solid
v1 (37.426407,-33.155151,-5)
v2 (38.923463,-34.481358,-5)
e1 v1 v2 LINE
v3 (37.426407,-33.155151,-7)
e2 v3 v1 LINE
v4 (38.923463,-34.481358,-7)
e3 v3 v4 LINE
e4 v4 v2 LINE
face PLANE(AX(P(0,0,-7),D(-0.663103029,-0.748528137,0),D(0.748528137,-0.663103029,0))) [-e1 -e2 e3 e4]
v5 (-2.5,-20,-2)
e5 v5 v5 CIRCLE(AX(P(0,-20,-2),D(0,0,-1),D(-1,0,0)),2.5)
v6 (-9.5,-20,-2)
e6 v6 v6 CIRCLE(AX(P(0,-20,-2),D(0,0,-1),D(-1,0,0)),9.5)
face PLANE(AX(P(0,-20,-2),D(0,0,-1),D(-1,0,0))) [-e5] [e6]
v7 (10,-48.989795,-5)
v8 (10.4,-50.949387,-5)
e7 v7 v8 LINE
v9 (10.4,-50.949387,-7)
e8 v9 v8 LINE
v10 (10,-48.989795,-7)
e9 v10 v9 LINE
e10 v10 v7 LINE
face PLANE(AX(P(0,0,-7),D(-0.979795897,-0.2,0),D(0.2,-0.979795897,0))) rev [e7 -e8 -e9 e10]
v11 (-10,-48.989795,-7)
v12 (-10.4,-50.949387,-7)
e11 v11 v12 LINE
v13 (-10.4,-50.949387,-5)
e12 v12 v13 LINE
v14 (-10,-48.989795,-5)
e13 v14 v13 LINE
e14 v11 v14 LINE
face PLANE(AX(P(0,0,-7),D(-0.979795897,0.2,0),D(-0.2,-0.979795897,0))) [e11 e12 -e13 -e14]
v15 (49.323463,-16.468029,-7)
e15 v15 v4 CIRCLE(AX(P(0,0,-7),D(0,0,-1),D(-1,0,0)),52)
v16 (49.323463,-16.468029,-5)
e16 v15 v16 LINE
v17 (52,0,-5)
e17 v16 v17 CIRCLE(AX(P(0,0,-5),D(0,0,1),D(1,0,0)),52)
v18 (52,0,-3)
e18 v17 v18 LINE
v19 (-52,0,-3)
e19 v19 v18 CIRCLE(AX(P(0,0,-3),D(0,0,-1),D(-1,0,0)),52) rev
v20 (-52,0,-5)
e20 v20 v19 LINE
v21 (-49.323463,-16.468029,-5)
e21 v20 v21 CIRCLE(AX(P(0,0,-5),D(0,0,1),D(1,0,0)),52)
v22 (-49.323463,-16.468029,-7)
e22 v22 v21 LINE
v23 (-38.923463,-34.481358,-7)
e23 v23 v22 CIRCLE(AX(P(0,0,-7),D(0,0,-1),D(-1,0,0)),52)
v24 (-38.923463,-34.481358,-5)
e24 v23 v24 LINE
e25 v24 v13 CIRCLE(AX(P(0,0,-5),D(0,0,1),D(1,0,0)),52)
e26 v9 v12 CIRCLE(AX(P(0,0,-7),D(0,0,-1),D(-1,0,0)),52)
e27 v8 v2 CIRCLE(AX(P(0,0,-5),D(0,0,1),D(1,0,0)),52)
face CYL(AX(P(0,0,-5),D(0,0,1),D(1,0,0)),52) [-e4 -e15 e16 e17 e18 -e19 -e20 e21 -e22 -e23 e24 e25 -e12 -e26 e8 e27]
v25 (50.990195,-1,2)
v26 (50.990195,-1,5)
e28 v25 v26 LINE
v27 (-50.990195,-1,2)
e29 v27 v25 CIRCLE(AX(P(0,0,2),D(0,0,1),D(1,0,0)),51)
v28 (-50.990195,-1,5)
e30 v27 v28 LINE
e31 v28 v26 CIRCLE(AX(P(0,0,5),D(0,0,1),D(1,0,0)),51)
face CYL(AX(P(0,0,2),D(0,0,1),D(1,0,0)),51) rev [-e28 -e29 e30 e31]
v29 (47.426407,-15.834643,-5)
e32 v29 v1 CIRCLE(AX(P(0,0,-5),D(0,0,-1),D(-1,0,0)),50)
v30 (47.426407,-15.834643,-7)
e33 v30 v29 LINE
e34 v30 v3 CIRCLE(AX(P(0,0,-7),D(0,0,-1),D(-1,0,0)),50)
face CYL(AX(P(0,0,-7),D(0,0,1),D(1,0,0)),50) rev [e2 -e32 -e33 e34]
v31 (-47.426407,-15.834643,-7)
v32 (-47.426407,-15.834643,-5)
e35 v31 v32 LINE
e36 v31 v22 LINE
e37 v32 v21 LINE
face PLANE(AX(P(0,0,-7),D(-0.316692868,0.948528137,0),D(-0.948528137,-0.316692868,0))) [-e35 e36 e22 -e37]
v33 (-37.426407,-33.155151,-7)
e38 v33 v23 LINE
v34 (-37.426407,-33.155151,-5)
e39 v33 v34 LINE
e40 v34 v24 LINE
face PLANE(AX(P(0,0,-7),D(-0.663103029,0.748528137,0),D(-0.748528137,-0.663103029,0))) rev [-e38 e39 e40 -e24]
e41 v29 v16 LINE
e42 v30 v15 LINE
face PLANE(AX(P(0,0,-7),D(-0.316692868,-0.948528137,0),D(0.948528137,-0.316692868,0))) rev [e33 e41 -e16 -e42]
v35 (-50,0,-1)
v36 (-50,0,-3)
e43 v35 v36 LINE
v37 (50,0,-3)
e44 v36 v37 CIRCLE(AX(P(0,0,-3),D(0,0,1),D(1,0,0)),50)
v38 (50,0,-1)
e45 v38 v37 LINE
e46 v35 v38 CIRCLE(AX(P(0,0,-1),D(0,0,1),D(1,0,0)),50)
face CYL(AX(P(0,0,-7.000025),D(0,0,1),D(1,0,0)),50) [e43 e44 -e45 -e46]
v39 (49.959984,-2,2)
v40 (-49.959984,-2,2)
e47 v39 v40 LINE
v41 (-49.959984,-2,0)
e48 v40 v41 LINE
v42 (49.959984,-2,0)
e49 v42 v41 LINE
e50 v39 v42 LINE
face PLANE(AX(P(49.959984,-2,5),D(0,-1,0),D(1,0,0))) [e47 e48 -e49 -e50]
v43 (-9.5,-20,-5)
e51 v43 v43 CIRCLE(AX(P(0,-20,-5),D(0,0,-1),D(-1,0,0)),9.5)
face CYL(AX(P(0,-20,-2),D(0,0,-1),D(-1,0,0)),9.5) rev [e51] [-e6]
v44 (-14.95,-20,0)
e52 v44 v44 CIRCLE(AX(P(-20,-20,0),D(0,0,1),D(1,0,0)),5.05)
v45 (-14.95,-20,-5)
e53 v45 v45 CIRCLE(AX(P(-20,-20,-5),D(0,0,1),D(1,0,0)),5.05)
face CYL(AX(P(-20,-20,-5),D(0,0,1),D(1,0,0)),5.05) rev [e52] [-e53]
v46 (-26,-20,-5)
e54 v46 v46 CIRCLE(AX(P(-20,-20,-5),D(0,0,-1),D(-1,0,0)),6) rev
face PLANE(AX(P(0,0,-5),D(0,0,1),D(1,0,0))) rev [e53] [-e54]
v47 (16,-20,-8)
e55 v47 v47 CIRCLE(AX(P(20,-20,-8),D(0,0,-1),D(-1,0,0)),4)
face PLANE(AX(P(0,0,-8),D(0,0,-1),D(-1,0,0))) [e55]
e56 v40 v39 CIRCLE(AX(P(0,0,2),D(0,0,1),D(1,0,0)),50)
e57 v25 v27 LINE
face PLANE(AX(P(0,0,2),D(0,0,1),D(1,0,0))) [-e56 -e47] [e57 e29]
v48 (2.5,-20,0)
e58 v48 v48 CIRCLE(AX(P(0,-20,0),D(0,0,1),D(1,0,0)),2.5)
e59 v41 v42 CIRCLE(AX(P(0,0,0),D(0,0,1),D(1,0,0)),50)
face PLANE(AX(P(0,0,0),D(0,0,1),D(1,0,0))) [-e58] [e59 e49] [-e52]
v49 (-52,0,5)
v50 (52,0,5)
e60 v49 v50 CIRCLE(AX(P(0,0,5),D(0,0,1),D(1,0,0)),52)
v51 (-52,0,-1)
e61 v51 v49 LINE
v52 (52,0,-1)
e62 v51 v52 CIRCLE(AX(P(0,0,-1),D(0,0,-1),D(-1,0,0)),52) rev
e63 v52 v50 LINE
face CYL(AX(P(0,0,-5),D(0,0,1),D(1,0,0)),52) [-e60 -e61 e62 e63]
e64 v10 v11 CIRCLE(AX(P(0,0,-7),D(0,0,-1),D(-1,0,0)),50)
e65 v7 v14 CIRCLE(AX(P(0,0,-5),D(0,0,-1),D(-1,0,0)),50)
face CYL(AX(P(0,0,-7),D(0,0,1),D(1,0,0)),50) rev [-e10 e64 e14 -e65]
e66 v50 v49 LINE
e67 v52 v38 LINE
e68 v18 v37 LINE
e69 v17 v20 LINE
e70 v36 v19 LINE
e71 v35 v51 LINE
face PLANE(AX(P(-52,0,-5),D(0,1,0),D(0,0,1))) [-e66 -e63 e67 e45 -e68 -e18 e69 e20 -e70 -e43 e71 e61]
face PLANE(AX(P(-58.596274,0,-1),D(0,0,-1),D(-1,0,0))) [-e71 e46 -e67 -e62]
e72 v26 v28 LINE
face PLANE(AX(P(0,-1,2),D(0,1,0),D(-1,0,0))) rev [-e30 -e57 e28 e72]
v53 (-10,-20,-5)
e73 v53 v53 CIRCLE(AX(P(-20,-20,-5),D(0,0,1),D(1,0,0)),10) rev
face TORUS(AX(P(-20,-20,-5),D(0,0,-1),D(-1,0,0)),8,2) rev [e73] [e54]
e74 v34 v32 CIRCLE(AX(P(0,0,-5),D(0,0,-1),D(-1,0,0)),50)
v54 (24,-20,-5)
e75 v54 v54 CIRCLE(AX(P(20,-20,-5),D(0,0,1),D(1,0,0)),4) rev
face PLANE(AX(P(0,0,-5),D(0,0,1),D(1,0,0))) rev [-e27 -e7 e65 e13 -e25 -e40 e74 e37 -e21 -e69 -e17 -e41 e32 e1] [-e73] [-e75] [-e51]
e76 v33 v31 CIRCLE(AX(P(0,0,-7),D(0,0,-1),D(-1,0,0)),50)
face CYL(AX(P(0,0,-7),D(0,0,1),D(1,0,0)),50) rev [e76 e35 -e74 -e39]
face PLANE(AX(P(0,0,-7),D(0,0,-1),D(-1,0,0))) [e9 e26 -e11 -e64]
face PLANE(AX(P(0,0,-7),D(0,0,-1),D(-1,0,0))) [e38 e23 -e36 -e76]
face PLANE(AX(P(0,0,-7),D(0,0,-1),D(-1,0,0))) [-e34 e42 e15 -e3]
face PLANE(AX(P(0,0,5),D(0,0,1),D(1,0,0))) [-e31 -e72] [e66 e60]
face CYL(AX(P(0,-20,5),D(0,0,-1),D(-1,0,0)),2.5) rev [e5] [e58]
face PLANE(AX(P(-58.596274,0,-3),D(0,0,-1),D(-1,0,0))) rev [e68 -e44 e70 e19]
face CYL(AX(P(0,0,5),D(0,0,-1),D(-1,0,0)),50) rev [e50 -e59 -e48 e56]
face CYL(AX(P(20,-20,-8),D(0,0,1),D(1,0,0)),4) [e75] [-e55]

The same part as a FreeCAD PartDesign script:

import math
import FreeCAD as App
import Part
import Sketcher
from FreeCAD import Vector
Q = App.Units.Quantity

doc = App.newDocument("Part")
params = doc.addObject("Spreadsheet::Sheet", "Params")
for row, (alias, value) in enumerate([
    ("sketch1_radius", "52 mm"),
    ("sketch1_diameter", "10.1 mm"),
    ("pad1_length", "5 mm"),
    ("sketch2_radius", "52 mm"),
    ("sketch2_radius2", "50 mm"),
    ("pad2_length", "5 mm"),
    ("sketch3_radius", "52 mm"),
    ("sketch3_radius2", "50 mm"),
    ("pad3_length", "2 mm"),
    ("sketch4_diameter", "19 mm"),
    ("sketch4_diameter2", "10.1 mm"),
    ("pocket1_length", "3 mm"),
    ("sketch5_diameter", "5 mm"),
    ("sketch6_diameter", "8 mm"),
    ("pad4_length", "3 mm"),
    ("sketch7_radius", "51 mm"),
    ("pocket3_length", "3 mm"),
    ("sketch8_height", "2 mm"),
    ("groove_angle", "180 deg"),
    ("sketch9_diameter", "4 mm"),
    ("sketch9_height", "10 mm"),
    ("groove2_angle", "360 deg"),
], start=1):
    params.set(f"A{row}", alias)
    params.set(f"B{row}", "=" + value)
    params.setAlias(f"B{row}", alias)

body = doc.addObject("PartDesign::Body", "Body")

# Sketch on XY plane
sketch1 = body.newObject("Sketcher::SketchObject", "Sketch")
sketch1.AttachmentSupport = (doc.getObject("XY_Plane"), [""])
sketch1.MapMode = "FlatFace"
sketch1.addGeometry(Part.LineSegment(Vector(52, 0, 0), Vector(-52, 0, 0)), False)
sketch1.addGeometry(Part.ArcOfCircle(Part.Circle(Vector(0, 0, 0), Vector(0, 0, 1), 52), math.radians(180), math.radians(360)), False)
sketch1.addGeometry(Part.Circle(Vector(-20, -20, 0), Vector(0, 0, 1), 5.05), False)
sketch1.addConstraint(Sketcher.Constraint("Coincident", 0, 1, 1, 2))
sketch1.addConstraint(Sketcher.Constraint("Coincident", 1, 1, 0, 2))
sketch1.addConstraint(Sketcher.Constraint("Horizontal", 0))
sketch1.addConstraint(Sketcher.Constraint("Coincident", 1, 3, -1, 1))
sketch1.addConstraint(Sketcher.Constraint("PointOnObject", 0, 1, -1))
sketch1.addConstraint(Sketcher.Constraint("Radius", 1, Q("52 mm")))
sketch1.addConstraint(Sketcher.Constraint("Diameter", 2, Q("10.1 mm")))
sketch1.addConstraint(Sketcher.Constraint("DistanceX", 2, 3, -1, 1, Q("20 mm")))
sketch1.addConstraint(Sketcher.Constraint("DistanceY", 2, 3, -1, 1, Q("20 mm")))
sketch1.setExpression("Constraints[5]", "Params.sketch1_radius")
sketch1.setExpression("Constraints[6]", "Params.sketch1_diameter")
pad1 = body.newObject("PartDesign::Pad", "Pad")
pad1.Profile = sketch1
pad1.setExpression("Length", "Params.pad1_length")
pad1.Reversed = True

# Sketch on XY plane
sketch2 = body.newObject("Sketcher::SketchObject", "Sketch001")
sketch2.AttachmentSupport = (doc.getObject("XY_Plane"), [""])
sketch2.MapMode = "FlatFace"
sketch2.AttachmentOffset = App.Placement(Vector(0, 0, 5), App.Rotation())
sketch2.addGeometry(Part.LineSegment(Vector(52, 0, 0), Vector(-52, 0, 0)), False)
sketch2.addGeometry(Part.ArcOfCircle(Part.Circle(Vector(0, 0, 0), Vector(0, 0, 1), 52), math.radians(180), math.radians(360)), False)
sketch2.addGeometry(Part.LineSegment(Vector(-49.959984, -2, 0), Vector(49.959984, -2, 0)), False)
sketch2.addGeometry(Part.ArcOfCircle(Part.Circle(Vector(0, 0, 0), Vector(0, 0, 1), 50), math.radians(-177.707557), math.radians(-2.292443)), False)
sketch2.addConstraint(Sketcher.Constraint("Coincident", 0, 1, 1, 2))
sketch2.addConstraint(Sketcher.Constraint("Coincident", 1, 1, 0, 2))
sketch2.addConstraint(Sketcher.Constraint("Coincident", 2, 1, 3, 1))
sketch2.addConstraint(Sketcher.Constraint("Coincident", 3, 2, 2, 2))
sketch2.addConstraint(Sketcher.Constraint("Horizontal", 0))
sketch2.addConstraint(Sketcher.Constraint("Horizontal", 2))
sketch2.addConstraint(Sketcher.Constraint("Coincident", 1, 3, -1, 1))
sketch2.addConstraint(Sketcher.Constraint("Coincident", 3, 3, -1, 1))
sketch2.addConstraint(Sketcher.Constraint("PointOnObject", 0, 1, -1))
sketch2.addConstraint(Sketcher.Constraint("Radius", 1, Q("52 mm")))
sketch2.addConstraint(Sketcher.Constraint("Radius", 3, Q("50 mm")))
sketch2.addConstraint(Sketcher.Constraint("DistanceY", 2, 1, -1, 1, Q("2 mm")))
sketch2.setExpression("Constraints[9]", "Params.sketch2_radius")
sketch2.setExpression("Constraints[10]", "Params.sketch2_radius2")
pad2 = body.newObject("PartDesign::Pad", "Pad001")
pad2.Profile = sketch2
pad2.setExpression("Length", "Params.pad2_length")
pad2.Reversed = True

# Sketch on XY plane
sketch3 = body.newObject("Sketcher::SketchObject", "Sketch002")
sketch3.AttachmentSupport = (doc.getObject("XY_Plane"), [""])
sketch3.MapMode = "FlatFace"
sketch3.AttachmentOffset = App.Placement(Vector(0, 0, -5), App.Rotation())
sketch3.addGeometry(Part.ArcOfCircle(Part.Circle(Vector(0, 0, 0), Vector(0, 0, 1), 52), math.radians(-41.536959), math.radians(-18.463041)), False)
sketch3.addGeometry(Part.LineSegment(Vector(38.923463, -34.481358, 0), Vector(37.426407, -33.155151, 0)), False)
sketch3.addGeometry(Part.ArcOfCircle(Part.Circle(Vector(0, 0, 0), Vector(0, 0, 1), 50), math.radians(-41.536959), math.radians(-18.463041)), False)
sketch3.addGeometry(Part.LineSegment(Vector(47.426407, -15.834643, 0), Vector(49.323463, -16.468029, 0)), False)
sketch3.addGeometry(Part.LineSegment(Vector(-10.4, -50.949387, 0), Vector(-10, -48.989795, 0)), False)
sketch3.addGeometry(Part.ArcOfCircle(Part.Circle(Vector(0, 0, 0), Vector(0, 0, 1), 50), math.radians(-101.536959), math.radians(-78.463041)), False)
sketch3.addGeometry(Part.LineSegment(Vector(10, -48.989795, 0), Vector(10.4, -50.949387, 0)), False)
sketch3.addGeometry(Part.ArcOfCircle(Part.Circle(Vector(0, 0, 0), Vector(0, 0, 1), 52), math.radians(-101.536959), math.radians(-78.463041)), False)
sketch3.addGeometry(Part.LineSegment(Vector(-37.426407, -33.155151, 0), Vector(-38.923463, -34.481358, 0)), False)
sketch3.addGeometry(Part.ArcOfCircle(Part.Circle(Vector(0, 0, 0), Vector(0, 0, 1), 52), math.radians(-161.536959), math.radians(-138.463041)), False)
sketch3.addGeometry(Part.LineSegment(Vector(-49.323463, -16.468029, 0), Vector(-47.426407, -15.834643, 0)), False)
sketch3.addGeometry(Part.ArcOfCircle(Part.Circle(Vector(0, 0, 0), Vector(0, 0, 1), 50), math.radians(-161.536959), math.radians(-138.463041)), False)
sketch3.addConstraint(Sketcher.Constraint("Coincident", 0, 1, 1, 1))
sketch3.addConstraint(Sketcher.Constraint("Coincident", 1, 2, 2, 1))
sketch3.addConstraint(Sketcher.Constraint("Coincident", 2, 2, 3, 1))
sketch3.addConstraint(Sketcher.Constraint("Coincident", 3, 2, 0, 2))
sketch3.addConstraint(Sketcher.Constraint("Coincident", 4, 2, 5, 1))
sketch3.addConstraint(Sketcher.Constraint("Coincident", 5, 2, 6, 1))
sketch3.addConstraint(Sketcher.Constraint("Coincident", 6, 2, 7, 2))
sketch3.addConstraint(Sketcher.Constraint("Coincident", 7, 1, 4, 1))
sketch3.addConstraint(Sketcher.Constraint("Coincident", 8, 2, 9, 2))
sketch3.addConstraint(Sketcher.Constraint("Coincident", 9, 1, 10, 1))
sketch3.addConstraint(Sketcher.Constraint("Coincident", 10, 2, 11, 1))
sketch3.addConstraint(Sketcher.Constraint("Coincident", 11, 2, 8, 1))
sketch3.addConstraint(Sketcher.Constraint("Coincident", 0, 3, -1, 1))
sketch3.addConstraint(Sketcher.Constraint("Coincident", 2, 3, -1, 1))
sketch3.addConstraint(Sketcher.Constraint("Coincident", 5, 3, -1, 1))
sketch3.addConstraint(Sketcher.Constraint("Coincident", 7, 3, -1, 1))
sketch3.addConstraint(Sketcher.Constraint("Coincident", 9, 3, -1, 1))
sketch3.addConstraint(Sketcher.Constraint("Coincident", 11, 3, -1, 1))
sketch3.addConstraint(Sketcher.Constraint("Equal", 2, 5))
sketch3.addConstraint(Sketcher.Constraint("Equal", 0, 7))
sketch3.addConstraint(Sketcher.Constraint("Equal", 7, 9))
sketch3.addConstraint(Sketcher.Constraint("Equal", 5, 11))
sketch3.addConstraint(Sketcher.Constraint("Horizontal", 4, 2, 5, 2))
sketch3.addConstraint(Sketcher.Constraint("Horizontal", 6, 2, 7, 1))
sketch3.addConstraint(Sketcher.Constraint("Horizontal", 0, 1, 8, 2))
sketch3.addConstraint(Sketcher.Constraint("Horizontal", 3, 2, 9, 1))
sketch3.addConstraint(Sketcher.Constraint("Horizontal", 2, 2, 10, 2))
sketch3.addConstraint(Sketcher.Constraint("Horizontal", 1, 2, 11, 2))
sketch3.addConstraint(Sketcher.Constraint("Radius", 0, Q("52 mm")))
sketch3.addConstraint(Sketcher.Constraint("Radius", 2, Q("50 mm")))
sketch3.addConstraint(Sketcher.Constraint("DistanceX", 4, 2, -1, 1, Q("10 mm")))
sketch3.addConstraint(Sketcher.Constraint("DistanceX", 1, 2, 2, 2, Q("10 mm")))
sketch3.addConstraint(Sketcher.Constraint("DistanceX", -1, 1, 6, 2, Q("10.4 mm")))
sketch3.addConstraint(Sketcher.Constraint("DistanceX", 0, 1, 3, 2, Q("10.4 mm")))
sketch3.addConstraint(Sketcher.Constraint("DistanceY", 1, 2, -1, 1, Q("33.155151 mm")))
sketch3.addConstraint(Sketcher.Constraint("DistanceY", 3, 2, -1, 1, Q("16.468029 mm")))
sketch3.setExpression("Constraints[28]", "Params.sketch3_radius")
sketch3.setExpression("Constraints[29]", "Params.sketch3_radius2")
pad3 = body.newObject("PartDesign::Pad", "Pad002")
pad3.Profile = sketch3
pad3.setExpression("Length", "Params.pad3_length")
pad3.Reversed = True

# Sketch on XY plane
sketch4 = body.newObject("Sketcher::SketchObject", "Sketch003")
sketch4.AttachmentSupport = (doc.getObject("XY_Plane"), [""])
sketch4.MapMode = "FlatFace"
sketch4.AttachmentOffset = App.Placement(Vector(0, 0, -2), App.Rotation())
sketch4.addGeometry(Part.Circle(Vector(0, -20, 0), Vector(0, 0, 1), 9.5), False)
sketch4.addGeometry(Part.Circle(Vector(-20, -20, 0), Vector(0, 0, 1), 5.05), False)
sketch4.addConstraint(Sketcher.Constraint("PointOnObject", 0, 3, -2))
sketch4.addConstraint(Sketcher.Constraint("Horizontal", 0, 3, 1, 3))
sketch4.addConstraint(Sketcher.Constraint("Diameter", 0, Q("19 mm")))
sketch4.addConstraint(Sketcher.Constraint("Diameter", 1, Q("10.1 mm")))
sketch4.addConstraint(Sketcher.Constraint("DistanceY", 0, 3, -1, 1, Q("20 mm")))
sketch4.addConstraint(Sketcher.Constraint("DistanceX", 1, 3, -1, 1, Q("20 mm")))
sketch4.setExpression("Constraints[2]", "Params.sketch4_diameter")
sketch4.setExpression("Constraints[3]", "Params.sketch4_diameter2")
pocket1 = body.newObject("PartDesign::Pocket", "Pocket")
pocket1.Profile = sketch4
pocket1.setExpression("Length", "Params.pocket1_length")

# Sketch on XY plane
sketch5 = body.newObject("Sketcher::SketchObject", "Sketch004")
sketch5.AttachmentSupport = (doc.getObject("XY_Plane"), [""])
sketch5.MapMode = "FlatFace"
sketch5.AttachmentOffset = App.Placement(Vector(0, 0, -2), App.Rotation())
sketch5.addGeometry(Part.Circle(Vector(0, -20, 0), Vector(0, 0, 1), 2.5), False)
sketch5.addConstraint(Sketcher.Constraint("PointOnObject", 0, 3, -2))
sketch5.addConstraint(Sketcher.Constraint("Diameter", 0, Q("5 mm")))
sketch5.addConstraint(Sketcher.Constraint("DistanceY", 0, 3, -1, 1, Q("20 mm")))
sketch5.setExpression("Constraints[1]", "Params.sketch5_diameter")
pocket2 = body.newObject("PartDesign::Pocket", "Pocket001")
pocket2.Profile = sketch5
pocket2.Type = "ThroughAll"
pocket2.Reversed = True

# Sketch on XY plane
sketch6 = body.newObject("Sketcher::SketchObject", "Sketch005")
sketch6.AttachmentSupport = (doc.getObject("XY_Plane"), [""])
sketch6.MapMode = "FlatFace"
sketch6.AttachmentOffset = App.Placement(Vector(0, 0, -5), App.Rotation())
sketch6.addGeometry(Part.Circle(Vector(20, -20, 0), Vector(0, 0, 1), 4), False)
sketch6.addConstraint(Sketcher.Constraint("Diameter", 0, Q("8 mm")))
sketch6.addConstraint(Sketcher.Constraint("DistanceX", -1, 1, 0, 3, Q("20 mm")))
sketch6.addConstraint(Sketcher.Constraint("DistanceY", 0, 3, -1, 1, Q("20 mm")))
sketch6.setExpression("Constraints[0]", "Params.sketch6_diameter")
pad4 = body.newObject("PartDesign::Pad", "Pad003")
pad4.Profile = sketch6
pad4.setExpression("Length", "Params.pad4_length")
pad4.Reversed = True

# Sketch on XY plane
sketch7 = body.newObject("Sketcher::SketchObject", "Sketch006")
sketch7.AttachmentSupport = (doc.getObject("XY_Plane"), [""])
sketch7.MapMode = "FlatFace"
sketch7.AttachmentOffset = App.Placement(Vector(0, 0, 5), App.Rotation())
sketch7.addGeometry(Part.LineSegment(Vector(50.990195, -1, 0), Vector(-50.990195, -1, 0)), False)
sketch7.addGeometry(Part.ArcOfCircle(Part.Circle(Vector(0, 0, 0), Vector(0, 0, 1), 51), math.radians(-178.876481), math.radians(-1.123519)), False)
sketch7.addConstraint(Sketcher.Constraint("Coincident", 0, 1, 1, 2))
sketch7.addConstraint(Sketcher.Constraint("Coincident", 1, 1, 0, 2))
sketch7.addConstraint(Sketcher.Constraint("Horizontal", 0))
sketch7.addConstraint(Sketcher.Constraint("Coincident", 1, 3, -1, 1))
sketch7.addConstraint(Sketcher.Constraint("Radius", 1, Q("51 mm")))
sketch7.addConstraint(Sketcher.Constraint("DistanceY", 0, 1, -1, 1, Q("1 mm")))
sketch7.setExpression("Constraints[4]", "Params.sketch7_radius")
pocket3 = body.newObject("PartDesign::Pocket", "Pocket002")
pocket3.Profile = sketch7
pocket3.setExpression("Length", "Params.pocket3_length")

# Sketch on XZ plane
sketch8 = body.newObject("Sketcher::SketchObject", "Sketch007")
sketch8.AttachmentSupport = (doc.getObject("XZ_Plane"), [""])
sketch8.MapMode = "FlatFace"
sketch8.addGeometry(Part.LineSegment(Vector(50, -3, 0), Vector(50, -1, 0)), False)
sketch8.addGeometry(Part.LineSegment(Vector(50, -1, 0), Vector(58.596274, -1, 0)), False)
sketch8.addGeometry(Part.LineSegment(Vector(58.596274, -1, 0), Vector(58.596274, -3, 0)), False)
sketch8.addGeometry(Part.LineSegment(Vector(58.596274, -3, 0), Vector(50, -3, 0)), False)
sketch8.addConstraint(Sketcher.Constraint("Coincident", 0, 2, 1, 1))
sketch8.addConstraint(Sketcher.Constraint("Coincident", 1, 2, 2, 1))
sketch8.addConstraint(Sketcher.Constraint("Coincident", 2, 2, 3, 1))
sketch8.addConstraint(Sketcher.Constraint("Coincident", 3, 2, 0, 1))
sketch8.addConstraint(Sketcher.Constraint("Vertical", 0))
sketch8.addConstraint(Sketcher.Constraint("Horizontal", 1))
sketch8.addConstraint(Sketcher.Constraint("Vertical", 2))
sketch8.addConstraint(Sketcher.Constraint("Horizontal", 3))
sketch8.addConstraint(Sketcher.Constraint("DistanceY", 0, 1, 0, 2, Q("2 mm")))
sketch8.addConstraint(Sketcher.Constraint("DistanceX", -1, 1, 0, 2, Q("50 mm")))
sketch8.addConstraint(Sketcher.Constraint("DistanceY", 0, 2, -1, 1, Q("1 mm")))
sketch8.addConstraint(Sketcher.Constraint("DistanceX", 1, 1, 1, 2, Q("8.596274 mm")))
sketch8.setExpression("Constraints[8]", "Params.sketch8_height")
groove = body.newObject("PartDesign::Groove", "Groove")
groove.Profile = sketch8
groove.ReferenceAxis = (sketch8, ["V_Axis"])
groove.setExpression("Angle", "Params.groove_angle")
groove.Reversed = True

# Sketch on XZ plane
sketch9 = body.newObject("Sketcher::SketchObject", "Sketch008")
sketch9.AttachmentSupport = (doc.getObject("XZ_Plane"), [""])
sketch9.MapMode = "FlatFace"
sketch9.AttachmentOffset = App.Placement(Vector(0, 0, 20), App.Rotation())
sketch9.addGeometry(Part.Circle(Vector(-12, -5, 0), Vector(0, 0, 1), 2), False)
sketch9.addGeometry(Part.LineSegment(Vector(-20, -5, 0), Vector(-20, 5, 0)), True)  # axis
sketch9.addConstraint(Sketcher.Constraint("Vertical", 1))
sketch9.addConstraint(Sketcher.Constraint("Horizontal", 0, 3, 1, 1))
sketch9.addConstraint(Sketcher.Constraint("Diameter", 0, Q("4 mm")))
sketch9.addConstraint(Sketcher.Constraint("DistanceY", 1, 1, 1, 2, Q("10 mm")))
sketch9.addConstraint(Sketcher.Constraint("DistanceX", 0, 3, -1, 1, Q("12 mm")))
sketch9.addConstraint(Sketcher.Constraint("DistanceY", 0, 3, -1, 1, Q("5 mm")))
sketch9.addConstraint(Sketcher.Constraint("DistanceX", 1, 1, -1, 1, Q("20 mm")))
sketch9.setExpression("Constraints[2]", "Params.sketch9_diameter")
sketch9.setExpression("Constraints[3]", "Params.sketch9_height")
groove2 = body.newObject("PartDesign::Groove", "Groove001")
groove2.Profile = sketch9
groove2.ReferenceAxis = (sketch9, ["Axis0"])
groove2.setExpression("Angle", "Params.groove2_angle")

doc.recompute()
